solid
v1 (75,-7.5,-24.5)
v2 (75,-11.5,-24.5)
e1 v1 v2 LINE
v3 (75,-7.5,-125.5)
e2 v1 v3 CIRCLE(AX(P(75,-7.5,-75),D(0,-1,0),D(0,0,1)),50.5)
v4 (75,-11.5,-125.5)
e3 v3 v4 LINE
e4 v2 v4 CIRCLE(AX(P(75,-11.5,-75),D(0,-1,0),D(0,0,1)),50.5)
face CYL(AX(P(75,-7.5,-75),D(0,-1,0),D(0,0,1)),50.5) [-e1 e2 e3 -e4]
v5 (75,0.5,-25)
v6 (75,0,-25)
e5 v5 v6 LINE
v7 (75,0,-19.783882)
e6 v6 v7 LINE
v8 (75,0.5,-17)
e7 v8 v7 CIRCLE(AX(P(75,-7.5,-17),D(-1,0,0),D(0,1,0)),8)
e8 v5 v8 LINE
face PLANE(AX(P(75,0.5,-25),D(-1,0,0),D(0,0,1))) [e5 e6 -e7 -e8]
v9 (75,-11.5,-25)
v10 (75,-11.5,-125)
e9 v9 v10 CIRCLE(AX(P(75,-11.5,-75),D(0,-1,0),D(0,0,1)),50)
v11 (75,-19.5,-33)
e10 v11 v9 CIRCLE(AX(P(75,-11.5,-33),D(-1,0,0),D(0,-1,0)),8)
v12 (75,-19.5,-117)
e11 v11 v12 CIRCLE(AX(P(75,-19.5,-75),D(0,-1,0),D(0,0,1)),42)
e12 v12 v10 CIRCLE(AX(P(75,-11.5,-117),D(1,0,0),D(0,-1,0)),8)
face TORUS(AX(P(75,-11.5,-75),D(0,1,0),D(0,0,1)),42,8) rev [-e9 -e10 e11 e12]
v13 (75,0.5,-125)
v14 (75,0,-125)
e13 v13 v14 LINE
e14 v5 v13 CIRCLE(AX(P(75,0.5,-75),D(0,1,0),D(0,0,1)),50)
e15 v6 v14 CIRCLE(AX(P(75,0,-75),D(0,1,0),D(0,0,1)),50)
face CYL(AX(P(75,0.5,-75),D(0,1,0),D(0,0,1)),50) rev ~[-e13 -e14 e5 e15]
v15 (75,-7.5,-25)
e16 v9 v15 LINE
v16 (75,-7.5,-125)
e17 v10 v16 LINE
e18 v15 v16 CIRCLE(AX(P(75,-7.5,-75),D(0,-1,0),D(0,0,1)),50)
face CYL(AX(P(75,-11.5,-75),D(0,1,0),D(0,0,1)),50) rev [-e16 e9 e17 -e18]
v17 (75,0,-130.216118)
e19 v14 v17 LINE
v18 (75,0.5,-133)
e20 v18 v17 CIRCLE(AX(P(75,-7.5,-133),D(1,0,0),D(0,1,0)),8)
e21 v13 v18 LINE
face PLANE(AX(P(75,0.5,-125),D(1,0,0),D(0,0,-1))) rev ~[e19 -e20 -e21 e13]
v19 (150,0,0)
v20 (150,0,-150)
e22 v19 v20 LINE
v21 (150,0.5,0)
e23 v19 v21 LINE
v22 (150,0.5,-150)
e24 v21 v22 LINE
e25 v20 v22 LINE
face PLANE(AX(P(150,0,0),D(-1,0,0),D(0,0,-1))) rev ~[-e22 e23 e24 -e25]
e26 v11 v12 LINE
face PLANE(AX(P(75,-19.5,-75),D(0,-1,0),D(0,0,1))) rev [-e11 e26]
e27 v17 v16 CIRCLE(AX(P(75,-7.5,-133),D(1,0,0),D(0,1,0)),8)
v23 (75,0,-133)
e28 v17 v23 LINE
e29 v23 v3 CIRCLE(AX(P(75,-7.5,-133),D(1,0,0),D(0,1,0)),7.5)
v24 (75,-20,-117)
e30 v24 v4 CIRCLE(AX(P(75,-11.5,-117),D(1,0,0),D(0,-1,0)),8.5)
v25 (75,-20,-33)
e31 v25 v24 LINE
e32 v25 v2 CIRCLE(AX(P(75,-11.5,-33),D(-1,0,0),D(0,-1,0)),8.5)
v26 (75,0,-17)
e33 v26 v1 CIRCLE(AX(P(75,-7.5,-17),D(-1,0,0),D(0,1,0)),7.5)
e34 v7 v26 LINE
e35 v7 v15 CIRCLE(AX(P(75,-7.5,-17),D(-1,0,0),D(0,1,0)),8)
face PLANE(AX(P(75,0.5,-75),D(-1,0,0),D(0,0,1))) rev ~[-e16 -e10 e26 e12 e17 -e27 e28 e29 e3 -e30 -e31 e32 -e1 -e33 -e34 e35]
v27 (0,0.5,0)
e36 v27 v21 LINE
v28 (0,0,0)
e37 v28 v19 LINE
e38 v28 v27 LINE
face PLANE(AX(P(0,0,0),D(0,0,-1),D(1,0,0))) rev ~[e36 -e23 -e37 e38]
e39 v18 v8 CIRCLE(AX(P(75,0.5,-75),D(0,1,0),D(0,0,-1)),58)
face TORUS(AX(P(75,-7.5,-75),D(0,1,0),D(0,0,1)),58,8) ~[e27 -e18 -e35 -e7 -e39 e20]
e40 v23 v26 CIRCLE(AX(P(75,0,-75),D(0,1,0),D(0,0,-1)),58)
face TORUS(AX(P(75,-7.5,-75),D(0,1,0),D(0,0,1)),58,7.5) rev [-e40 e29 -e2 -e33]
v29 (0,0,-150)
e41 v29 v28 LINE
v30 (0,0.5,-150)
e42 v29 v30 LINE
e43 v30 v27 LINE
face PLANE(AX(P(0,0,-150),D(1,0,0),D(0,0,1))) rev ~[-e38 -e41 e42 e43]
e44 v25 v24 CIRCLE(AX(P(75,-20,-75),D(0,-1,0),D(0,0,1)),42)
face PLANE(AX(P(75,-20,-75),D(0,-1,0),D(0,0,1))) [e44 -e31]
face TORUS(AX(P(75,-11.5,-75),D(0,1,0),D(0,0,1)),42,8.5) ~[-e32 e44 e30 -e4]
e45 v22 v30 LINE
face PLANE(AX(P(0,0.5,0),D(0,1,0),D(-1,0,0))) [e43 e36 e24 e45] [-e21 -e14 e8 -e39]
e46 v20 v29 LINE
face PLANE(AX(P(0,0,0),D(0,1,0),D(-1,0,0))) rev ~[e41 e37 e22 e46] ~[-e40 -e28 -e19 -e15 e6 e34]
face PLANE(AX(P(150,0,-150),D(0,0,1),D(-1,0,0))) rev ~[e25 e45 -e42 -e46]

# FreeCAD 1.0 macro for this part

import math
import FreeCAD as App
import Part
import Sketcher


def add_polygon(sketch, points):
    """Adds a closed chain of lines whose ends are joined by coincident constraints."""
    first, n = sketch.GeometryCount, len(points)
    for a, b in zip(points, points[1:] + points[:1]):
        sketch.addGeometry(Part.LineSegment(App.Vector(*a, 0), App.Vector(*b, 0)), False)
    for i in range(n):
        sketch.addConstraint(Sketcher.Constraint("Coincident", first + i, 2, first + (i + 1) % n, 1))

doc = App.newDocument("Part")
body = doc.addObject("PartDesign::Body", "Body")

sketch1 = body.newObject("Sketcher::SketchObject", "Sketch")
sketch1.AttachmentSupport = (doc.getObject("XZ_Plane"), [""])
sketch1.MapMode = "FlatFace"
add_polygon(sketch1, [(0, -150), (0, 0), (150, 0), (150, -150)])
sketch1.addConstraint(Sketcher.Constraint("Vertical", 0))
sketch1.addConstraint(Sketcher.Constraint("Horizontal", 1))
sketch1.addConstraint(Sketcher.Constraint("Vertical", 2))
sketch1.addConstraint(Sketcher.Constraint("Horizontal", 3))
sketch1.addConstraint(Sketcher.Constraint("Coincident", 0, 2, -1, 1))
sketch1.addConstraint(Sketcher.Constraint("Equal", 3, 0))
sketch1.addConstraint(Sketcher.Constraint("DistanceX", 1, 1, 1, 2, 150.0))
pad1 = body.newObject("PartDesign::Pad", "Pad")
pad1.Profile = sketch1
pad1.Length = 0.5
pad1.Reversed = True

sketch2 = body.newObject("Sketcher::SketchObject", "Sketch001")
sketch2.AttachmentSupport = (doc.getObject("XZ_Plane"), [""])
sketch2.MapMode = "FlatFace"
sketch2.AttachmentOffset = App.Placement(App.Vector(0, 0, -0.5), App.Rotation())
sketch2.addGeometry(Part.LineSegment(App.Vector(75, -125, 0), App.Vector(75, -133, 0)), False)
sketch2.addGeometry(Part.ArcOfCircle(Part.Circle(App.Vector(75, -75, 0), App.Vector(0, 0, 1), 58), math.radians(90), math.radians(270)), False)
sketch2.addGeometry(Part.LineSegment(App.Vector(75, -17, 0), App.Vector(75, -25, 0)), False)
sketch2.addGeometry(Part.ArcOfCircle(Part.Circle(App.Vector(75, -75, 0), App.Vector(0, 0, 1), 50), math.radians(-90), math.radians(90)), False)
sketch2.addConstraint(Sketcher.Constraint("Coincident", 0, 2, 1, 2))
sketch2.addConstraint(Sketcher.Constraint("Coincident", 1, 1, 2, 1))
sketch2.addConstraint(Sketcher.Constraint("Coincident", 2, 2, 3, 2))
sketch2.addConstraint(Sketcher.Constraint("Coincident", 3, 1, 0, 1))
sketch2.addConstraint(Sketcher.Constraint("Vertical", 0))
sketch2.addConstraint(Sketcher.Constraint("Vertical", 2))
sketch2.addConstraint(Sketcher.Constraint("Coincident", 3, 3, 1, 3))
sketch2.addConstraint(Sketcher.Constraint("Vertical", 3, 3, 0, 2))
sketch2.addConstraint(Sketcher.Constraint("Vertical", 0, 2, 1, 1))
sketch2.addConstraint(Sketcher.Constraint("Radius", 1, 58.0))
sketch2.addConstraint(Sketcher.Constraint("Radius", 3, 50.0))
sketch2.addConstraint(Sketcher.Constraint("DistanceX", -1, 1, 1, 3, 75.0))
sketch2.addConstraint(Sketcher.Constraint("DistanceY", 1, 3, -1, 1, 75.0))
pocket1 = body.newObject("PartDesign::Pocket", "Pocket")
pocket1.Profile = sketch2
pocket1.Length = 0.5
pocket1.Reversed = True

sketch3 = body.newObject("Sketcher::SketchObject", "Sketch002")
sketch3.AttachmentSupport = (doc.getObject("XY_Plane"), [""])
sketch3.MapMode = "FlatFace"
sketch3.AttachmentOffset = App.Placement(App.Vector(0, 0, -75), App.Rotation())
sketch3.addGeometry(Part.LineSegment(App.Vector(33, -19.5, 0), App.Vector(75, -19.5, 0)), False)
sketch3.addGeometry(Part.LineSegment(App.Vector(75, -19.5, 0), App.Vector(75, -20, 0)), False)
sketch3.addGeometry(Part.LineSegment(App.Vector(75, -20, 0), App.Vector(33, -20, 0)), False)
sketch3.addGeometry(Part.ArcOfCircle(Part.Circle(App.Vector(33, -11.5, 0), App.Vector(0, 0, 1), 8.5), math.radians(180), math.radians(270)), False)
sketch3.addGeometry(Part.LineSegment(App.Vector(24.5, -11.5, 0), App.Vector(24.5, -7.5, 0)), False)
sketch3.addGeometry(Part.ArcOfCircle(Part.Circle(App.Vector(17, -7.5, 0), App.Vector(0, 0, 1), 7.5), math.radians(0), math.radians(90)), False)
sketch3.addGeometry(Part.LineSegment(App.Vector(17, 0, 0), App.Vector(17, 0.5, 0)), False)
sketch3.addGeometry(Part.ArcOfCircle(Part.Circle(App.Vector(17, -7.5, 0), App.Vector(0, 0, 1), 8), math.radians(0), math.radians(90)), False)
sketch3.addGeometry(Part.LineSegment(App.Vector(25, -7.5, 0), App.Vector(25, -11.5, 0)), False)
sketch3.addGeometry(Part.ArcOfCircle(Part.Circle(App.Vector(33, -11.5, 0), App.Vector(0, 0, 1), 8), math.radians(180), math.radians(270)), False)
sketch3.addGeometry(Part.LineSegment(App.Vector(75, 0.5, 0), App.Vector(75, -20, 0)), True)
sketch3.addConstraint(Sketcher.Constraint("Coincident", 0, 2, 1, 1))
sketch3.addConstraint(Sketcher.Constraint("Coincident", 1, 2, 2, 1))
sketch3.addConstraint(Sketcher.Constraint("Tangent", 2, 2, 3, 2))
sketch3.addConstraint(Sketcher.Constraint("Tangent", 3, 1, 4, 1))
sketch3.addConstraint(Sketcher.Constraint("Tangent", 4, 2, 5, 1))
sketch3.addConstraint(Sketcher.Constraint("Coincident", 5, 2, 6, 1))
sketch3.addConstraint(Sketcher.Constraint("Coincident", 6, 2, 7, 2))
sketch3.addConstraint(Sketcher.Constraint("Tangent", 7, 1, 8, 1))
sketch3.addConstraint(Sketcher.Constraint("Tangent", 8, 2, 9, 1))
sketch3.addConstraint(Sketcher.Constraint("Tangent", 9, 2, 0, 1))
sketch3.addConstraint(Sketcher.Constraint("Horizontal", 0))
sketch3.addConstraint(Sketcher.Constraint("Vertical", 1))
sketch3.addConstraint(Sketcher.Constraint("Horizontal", 2))
sketch3.addConstraint(Sketcher.Constraint("Vertical", 4))
sketch3.addConstraint(Sketcher.Constraint("Vertical", 6))
sketch3.addConstraint(Sketcher.Constraint("Vertical", 8))
sketch3.addConstraint(Sketcher.Constraint("Vertical", 10))
sketch3.addConstraint(Sketcher.Constraint("Coincident", 7, 3, 5, 3))
sketch3.addConstraint(Sketcher.Constraint("Coincident", 9, 3, 3, 3))
sketch3.addConstraint(Sketcher.Constraint("Coincident", 10, 2, 1, 2))
sketch3.addConstraint(Sketcher.Constraint("Equal", 7, 9))
sketch3.addConstraint(Sketcher.Constraint("PointOnObject", 5, 2, -1))
sketch3.addConstraint(Sketcher.Constraint("Horizontal", 6, 2, 10, 1))
sketch3.addConstraint(Sketcher.Constraint("Vertical", 7, 3, 5, 2))
sketch3.addConstraint(Sketcher.Constraint("Radius", 7, 8.0))
sketch3.addConstraint(Sketcher.Constraint("DistanceY", 1, 2, 1, 1, 0.5))
sketch3.addConstraint(Sketcher.Constraint("DistanceY", 1, 2, -1, 1, 20.0))
sketch3.addConstraint(Sketcher.Constraint("DistanceX", 0, 1, 0, 2, 42.0))
sketch3.addConstraint(Sketcher.Constraint("DistanceX", -1, 1, 3, 3, 33.0))
revolution = body.newObject("PartDesign::Revolution", "Revolution")
revolution.Profile = sketch3
revolution.ReferenceAxis = (sketch3, ["Axis0"])
revolution.Angle = 180
revolution.Midplane = True

doc.recompute()
